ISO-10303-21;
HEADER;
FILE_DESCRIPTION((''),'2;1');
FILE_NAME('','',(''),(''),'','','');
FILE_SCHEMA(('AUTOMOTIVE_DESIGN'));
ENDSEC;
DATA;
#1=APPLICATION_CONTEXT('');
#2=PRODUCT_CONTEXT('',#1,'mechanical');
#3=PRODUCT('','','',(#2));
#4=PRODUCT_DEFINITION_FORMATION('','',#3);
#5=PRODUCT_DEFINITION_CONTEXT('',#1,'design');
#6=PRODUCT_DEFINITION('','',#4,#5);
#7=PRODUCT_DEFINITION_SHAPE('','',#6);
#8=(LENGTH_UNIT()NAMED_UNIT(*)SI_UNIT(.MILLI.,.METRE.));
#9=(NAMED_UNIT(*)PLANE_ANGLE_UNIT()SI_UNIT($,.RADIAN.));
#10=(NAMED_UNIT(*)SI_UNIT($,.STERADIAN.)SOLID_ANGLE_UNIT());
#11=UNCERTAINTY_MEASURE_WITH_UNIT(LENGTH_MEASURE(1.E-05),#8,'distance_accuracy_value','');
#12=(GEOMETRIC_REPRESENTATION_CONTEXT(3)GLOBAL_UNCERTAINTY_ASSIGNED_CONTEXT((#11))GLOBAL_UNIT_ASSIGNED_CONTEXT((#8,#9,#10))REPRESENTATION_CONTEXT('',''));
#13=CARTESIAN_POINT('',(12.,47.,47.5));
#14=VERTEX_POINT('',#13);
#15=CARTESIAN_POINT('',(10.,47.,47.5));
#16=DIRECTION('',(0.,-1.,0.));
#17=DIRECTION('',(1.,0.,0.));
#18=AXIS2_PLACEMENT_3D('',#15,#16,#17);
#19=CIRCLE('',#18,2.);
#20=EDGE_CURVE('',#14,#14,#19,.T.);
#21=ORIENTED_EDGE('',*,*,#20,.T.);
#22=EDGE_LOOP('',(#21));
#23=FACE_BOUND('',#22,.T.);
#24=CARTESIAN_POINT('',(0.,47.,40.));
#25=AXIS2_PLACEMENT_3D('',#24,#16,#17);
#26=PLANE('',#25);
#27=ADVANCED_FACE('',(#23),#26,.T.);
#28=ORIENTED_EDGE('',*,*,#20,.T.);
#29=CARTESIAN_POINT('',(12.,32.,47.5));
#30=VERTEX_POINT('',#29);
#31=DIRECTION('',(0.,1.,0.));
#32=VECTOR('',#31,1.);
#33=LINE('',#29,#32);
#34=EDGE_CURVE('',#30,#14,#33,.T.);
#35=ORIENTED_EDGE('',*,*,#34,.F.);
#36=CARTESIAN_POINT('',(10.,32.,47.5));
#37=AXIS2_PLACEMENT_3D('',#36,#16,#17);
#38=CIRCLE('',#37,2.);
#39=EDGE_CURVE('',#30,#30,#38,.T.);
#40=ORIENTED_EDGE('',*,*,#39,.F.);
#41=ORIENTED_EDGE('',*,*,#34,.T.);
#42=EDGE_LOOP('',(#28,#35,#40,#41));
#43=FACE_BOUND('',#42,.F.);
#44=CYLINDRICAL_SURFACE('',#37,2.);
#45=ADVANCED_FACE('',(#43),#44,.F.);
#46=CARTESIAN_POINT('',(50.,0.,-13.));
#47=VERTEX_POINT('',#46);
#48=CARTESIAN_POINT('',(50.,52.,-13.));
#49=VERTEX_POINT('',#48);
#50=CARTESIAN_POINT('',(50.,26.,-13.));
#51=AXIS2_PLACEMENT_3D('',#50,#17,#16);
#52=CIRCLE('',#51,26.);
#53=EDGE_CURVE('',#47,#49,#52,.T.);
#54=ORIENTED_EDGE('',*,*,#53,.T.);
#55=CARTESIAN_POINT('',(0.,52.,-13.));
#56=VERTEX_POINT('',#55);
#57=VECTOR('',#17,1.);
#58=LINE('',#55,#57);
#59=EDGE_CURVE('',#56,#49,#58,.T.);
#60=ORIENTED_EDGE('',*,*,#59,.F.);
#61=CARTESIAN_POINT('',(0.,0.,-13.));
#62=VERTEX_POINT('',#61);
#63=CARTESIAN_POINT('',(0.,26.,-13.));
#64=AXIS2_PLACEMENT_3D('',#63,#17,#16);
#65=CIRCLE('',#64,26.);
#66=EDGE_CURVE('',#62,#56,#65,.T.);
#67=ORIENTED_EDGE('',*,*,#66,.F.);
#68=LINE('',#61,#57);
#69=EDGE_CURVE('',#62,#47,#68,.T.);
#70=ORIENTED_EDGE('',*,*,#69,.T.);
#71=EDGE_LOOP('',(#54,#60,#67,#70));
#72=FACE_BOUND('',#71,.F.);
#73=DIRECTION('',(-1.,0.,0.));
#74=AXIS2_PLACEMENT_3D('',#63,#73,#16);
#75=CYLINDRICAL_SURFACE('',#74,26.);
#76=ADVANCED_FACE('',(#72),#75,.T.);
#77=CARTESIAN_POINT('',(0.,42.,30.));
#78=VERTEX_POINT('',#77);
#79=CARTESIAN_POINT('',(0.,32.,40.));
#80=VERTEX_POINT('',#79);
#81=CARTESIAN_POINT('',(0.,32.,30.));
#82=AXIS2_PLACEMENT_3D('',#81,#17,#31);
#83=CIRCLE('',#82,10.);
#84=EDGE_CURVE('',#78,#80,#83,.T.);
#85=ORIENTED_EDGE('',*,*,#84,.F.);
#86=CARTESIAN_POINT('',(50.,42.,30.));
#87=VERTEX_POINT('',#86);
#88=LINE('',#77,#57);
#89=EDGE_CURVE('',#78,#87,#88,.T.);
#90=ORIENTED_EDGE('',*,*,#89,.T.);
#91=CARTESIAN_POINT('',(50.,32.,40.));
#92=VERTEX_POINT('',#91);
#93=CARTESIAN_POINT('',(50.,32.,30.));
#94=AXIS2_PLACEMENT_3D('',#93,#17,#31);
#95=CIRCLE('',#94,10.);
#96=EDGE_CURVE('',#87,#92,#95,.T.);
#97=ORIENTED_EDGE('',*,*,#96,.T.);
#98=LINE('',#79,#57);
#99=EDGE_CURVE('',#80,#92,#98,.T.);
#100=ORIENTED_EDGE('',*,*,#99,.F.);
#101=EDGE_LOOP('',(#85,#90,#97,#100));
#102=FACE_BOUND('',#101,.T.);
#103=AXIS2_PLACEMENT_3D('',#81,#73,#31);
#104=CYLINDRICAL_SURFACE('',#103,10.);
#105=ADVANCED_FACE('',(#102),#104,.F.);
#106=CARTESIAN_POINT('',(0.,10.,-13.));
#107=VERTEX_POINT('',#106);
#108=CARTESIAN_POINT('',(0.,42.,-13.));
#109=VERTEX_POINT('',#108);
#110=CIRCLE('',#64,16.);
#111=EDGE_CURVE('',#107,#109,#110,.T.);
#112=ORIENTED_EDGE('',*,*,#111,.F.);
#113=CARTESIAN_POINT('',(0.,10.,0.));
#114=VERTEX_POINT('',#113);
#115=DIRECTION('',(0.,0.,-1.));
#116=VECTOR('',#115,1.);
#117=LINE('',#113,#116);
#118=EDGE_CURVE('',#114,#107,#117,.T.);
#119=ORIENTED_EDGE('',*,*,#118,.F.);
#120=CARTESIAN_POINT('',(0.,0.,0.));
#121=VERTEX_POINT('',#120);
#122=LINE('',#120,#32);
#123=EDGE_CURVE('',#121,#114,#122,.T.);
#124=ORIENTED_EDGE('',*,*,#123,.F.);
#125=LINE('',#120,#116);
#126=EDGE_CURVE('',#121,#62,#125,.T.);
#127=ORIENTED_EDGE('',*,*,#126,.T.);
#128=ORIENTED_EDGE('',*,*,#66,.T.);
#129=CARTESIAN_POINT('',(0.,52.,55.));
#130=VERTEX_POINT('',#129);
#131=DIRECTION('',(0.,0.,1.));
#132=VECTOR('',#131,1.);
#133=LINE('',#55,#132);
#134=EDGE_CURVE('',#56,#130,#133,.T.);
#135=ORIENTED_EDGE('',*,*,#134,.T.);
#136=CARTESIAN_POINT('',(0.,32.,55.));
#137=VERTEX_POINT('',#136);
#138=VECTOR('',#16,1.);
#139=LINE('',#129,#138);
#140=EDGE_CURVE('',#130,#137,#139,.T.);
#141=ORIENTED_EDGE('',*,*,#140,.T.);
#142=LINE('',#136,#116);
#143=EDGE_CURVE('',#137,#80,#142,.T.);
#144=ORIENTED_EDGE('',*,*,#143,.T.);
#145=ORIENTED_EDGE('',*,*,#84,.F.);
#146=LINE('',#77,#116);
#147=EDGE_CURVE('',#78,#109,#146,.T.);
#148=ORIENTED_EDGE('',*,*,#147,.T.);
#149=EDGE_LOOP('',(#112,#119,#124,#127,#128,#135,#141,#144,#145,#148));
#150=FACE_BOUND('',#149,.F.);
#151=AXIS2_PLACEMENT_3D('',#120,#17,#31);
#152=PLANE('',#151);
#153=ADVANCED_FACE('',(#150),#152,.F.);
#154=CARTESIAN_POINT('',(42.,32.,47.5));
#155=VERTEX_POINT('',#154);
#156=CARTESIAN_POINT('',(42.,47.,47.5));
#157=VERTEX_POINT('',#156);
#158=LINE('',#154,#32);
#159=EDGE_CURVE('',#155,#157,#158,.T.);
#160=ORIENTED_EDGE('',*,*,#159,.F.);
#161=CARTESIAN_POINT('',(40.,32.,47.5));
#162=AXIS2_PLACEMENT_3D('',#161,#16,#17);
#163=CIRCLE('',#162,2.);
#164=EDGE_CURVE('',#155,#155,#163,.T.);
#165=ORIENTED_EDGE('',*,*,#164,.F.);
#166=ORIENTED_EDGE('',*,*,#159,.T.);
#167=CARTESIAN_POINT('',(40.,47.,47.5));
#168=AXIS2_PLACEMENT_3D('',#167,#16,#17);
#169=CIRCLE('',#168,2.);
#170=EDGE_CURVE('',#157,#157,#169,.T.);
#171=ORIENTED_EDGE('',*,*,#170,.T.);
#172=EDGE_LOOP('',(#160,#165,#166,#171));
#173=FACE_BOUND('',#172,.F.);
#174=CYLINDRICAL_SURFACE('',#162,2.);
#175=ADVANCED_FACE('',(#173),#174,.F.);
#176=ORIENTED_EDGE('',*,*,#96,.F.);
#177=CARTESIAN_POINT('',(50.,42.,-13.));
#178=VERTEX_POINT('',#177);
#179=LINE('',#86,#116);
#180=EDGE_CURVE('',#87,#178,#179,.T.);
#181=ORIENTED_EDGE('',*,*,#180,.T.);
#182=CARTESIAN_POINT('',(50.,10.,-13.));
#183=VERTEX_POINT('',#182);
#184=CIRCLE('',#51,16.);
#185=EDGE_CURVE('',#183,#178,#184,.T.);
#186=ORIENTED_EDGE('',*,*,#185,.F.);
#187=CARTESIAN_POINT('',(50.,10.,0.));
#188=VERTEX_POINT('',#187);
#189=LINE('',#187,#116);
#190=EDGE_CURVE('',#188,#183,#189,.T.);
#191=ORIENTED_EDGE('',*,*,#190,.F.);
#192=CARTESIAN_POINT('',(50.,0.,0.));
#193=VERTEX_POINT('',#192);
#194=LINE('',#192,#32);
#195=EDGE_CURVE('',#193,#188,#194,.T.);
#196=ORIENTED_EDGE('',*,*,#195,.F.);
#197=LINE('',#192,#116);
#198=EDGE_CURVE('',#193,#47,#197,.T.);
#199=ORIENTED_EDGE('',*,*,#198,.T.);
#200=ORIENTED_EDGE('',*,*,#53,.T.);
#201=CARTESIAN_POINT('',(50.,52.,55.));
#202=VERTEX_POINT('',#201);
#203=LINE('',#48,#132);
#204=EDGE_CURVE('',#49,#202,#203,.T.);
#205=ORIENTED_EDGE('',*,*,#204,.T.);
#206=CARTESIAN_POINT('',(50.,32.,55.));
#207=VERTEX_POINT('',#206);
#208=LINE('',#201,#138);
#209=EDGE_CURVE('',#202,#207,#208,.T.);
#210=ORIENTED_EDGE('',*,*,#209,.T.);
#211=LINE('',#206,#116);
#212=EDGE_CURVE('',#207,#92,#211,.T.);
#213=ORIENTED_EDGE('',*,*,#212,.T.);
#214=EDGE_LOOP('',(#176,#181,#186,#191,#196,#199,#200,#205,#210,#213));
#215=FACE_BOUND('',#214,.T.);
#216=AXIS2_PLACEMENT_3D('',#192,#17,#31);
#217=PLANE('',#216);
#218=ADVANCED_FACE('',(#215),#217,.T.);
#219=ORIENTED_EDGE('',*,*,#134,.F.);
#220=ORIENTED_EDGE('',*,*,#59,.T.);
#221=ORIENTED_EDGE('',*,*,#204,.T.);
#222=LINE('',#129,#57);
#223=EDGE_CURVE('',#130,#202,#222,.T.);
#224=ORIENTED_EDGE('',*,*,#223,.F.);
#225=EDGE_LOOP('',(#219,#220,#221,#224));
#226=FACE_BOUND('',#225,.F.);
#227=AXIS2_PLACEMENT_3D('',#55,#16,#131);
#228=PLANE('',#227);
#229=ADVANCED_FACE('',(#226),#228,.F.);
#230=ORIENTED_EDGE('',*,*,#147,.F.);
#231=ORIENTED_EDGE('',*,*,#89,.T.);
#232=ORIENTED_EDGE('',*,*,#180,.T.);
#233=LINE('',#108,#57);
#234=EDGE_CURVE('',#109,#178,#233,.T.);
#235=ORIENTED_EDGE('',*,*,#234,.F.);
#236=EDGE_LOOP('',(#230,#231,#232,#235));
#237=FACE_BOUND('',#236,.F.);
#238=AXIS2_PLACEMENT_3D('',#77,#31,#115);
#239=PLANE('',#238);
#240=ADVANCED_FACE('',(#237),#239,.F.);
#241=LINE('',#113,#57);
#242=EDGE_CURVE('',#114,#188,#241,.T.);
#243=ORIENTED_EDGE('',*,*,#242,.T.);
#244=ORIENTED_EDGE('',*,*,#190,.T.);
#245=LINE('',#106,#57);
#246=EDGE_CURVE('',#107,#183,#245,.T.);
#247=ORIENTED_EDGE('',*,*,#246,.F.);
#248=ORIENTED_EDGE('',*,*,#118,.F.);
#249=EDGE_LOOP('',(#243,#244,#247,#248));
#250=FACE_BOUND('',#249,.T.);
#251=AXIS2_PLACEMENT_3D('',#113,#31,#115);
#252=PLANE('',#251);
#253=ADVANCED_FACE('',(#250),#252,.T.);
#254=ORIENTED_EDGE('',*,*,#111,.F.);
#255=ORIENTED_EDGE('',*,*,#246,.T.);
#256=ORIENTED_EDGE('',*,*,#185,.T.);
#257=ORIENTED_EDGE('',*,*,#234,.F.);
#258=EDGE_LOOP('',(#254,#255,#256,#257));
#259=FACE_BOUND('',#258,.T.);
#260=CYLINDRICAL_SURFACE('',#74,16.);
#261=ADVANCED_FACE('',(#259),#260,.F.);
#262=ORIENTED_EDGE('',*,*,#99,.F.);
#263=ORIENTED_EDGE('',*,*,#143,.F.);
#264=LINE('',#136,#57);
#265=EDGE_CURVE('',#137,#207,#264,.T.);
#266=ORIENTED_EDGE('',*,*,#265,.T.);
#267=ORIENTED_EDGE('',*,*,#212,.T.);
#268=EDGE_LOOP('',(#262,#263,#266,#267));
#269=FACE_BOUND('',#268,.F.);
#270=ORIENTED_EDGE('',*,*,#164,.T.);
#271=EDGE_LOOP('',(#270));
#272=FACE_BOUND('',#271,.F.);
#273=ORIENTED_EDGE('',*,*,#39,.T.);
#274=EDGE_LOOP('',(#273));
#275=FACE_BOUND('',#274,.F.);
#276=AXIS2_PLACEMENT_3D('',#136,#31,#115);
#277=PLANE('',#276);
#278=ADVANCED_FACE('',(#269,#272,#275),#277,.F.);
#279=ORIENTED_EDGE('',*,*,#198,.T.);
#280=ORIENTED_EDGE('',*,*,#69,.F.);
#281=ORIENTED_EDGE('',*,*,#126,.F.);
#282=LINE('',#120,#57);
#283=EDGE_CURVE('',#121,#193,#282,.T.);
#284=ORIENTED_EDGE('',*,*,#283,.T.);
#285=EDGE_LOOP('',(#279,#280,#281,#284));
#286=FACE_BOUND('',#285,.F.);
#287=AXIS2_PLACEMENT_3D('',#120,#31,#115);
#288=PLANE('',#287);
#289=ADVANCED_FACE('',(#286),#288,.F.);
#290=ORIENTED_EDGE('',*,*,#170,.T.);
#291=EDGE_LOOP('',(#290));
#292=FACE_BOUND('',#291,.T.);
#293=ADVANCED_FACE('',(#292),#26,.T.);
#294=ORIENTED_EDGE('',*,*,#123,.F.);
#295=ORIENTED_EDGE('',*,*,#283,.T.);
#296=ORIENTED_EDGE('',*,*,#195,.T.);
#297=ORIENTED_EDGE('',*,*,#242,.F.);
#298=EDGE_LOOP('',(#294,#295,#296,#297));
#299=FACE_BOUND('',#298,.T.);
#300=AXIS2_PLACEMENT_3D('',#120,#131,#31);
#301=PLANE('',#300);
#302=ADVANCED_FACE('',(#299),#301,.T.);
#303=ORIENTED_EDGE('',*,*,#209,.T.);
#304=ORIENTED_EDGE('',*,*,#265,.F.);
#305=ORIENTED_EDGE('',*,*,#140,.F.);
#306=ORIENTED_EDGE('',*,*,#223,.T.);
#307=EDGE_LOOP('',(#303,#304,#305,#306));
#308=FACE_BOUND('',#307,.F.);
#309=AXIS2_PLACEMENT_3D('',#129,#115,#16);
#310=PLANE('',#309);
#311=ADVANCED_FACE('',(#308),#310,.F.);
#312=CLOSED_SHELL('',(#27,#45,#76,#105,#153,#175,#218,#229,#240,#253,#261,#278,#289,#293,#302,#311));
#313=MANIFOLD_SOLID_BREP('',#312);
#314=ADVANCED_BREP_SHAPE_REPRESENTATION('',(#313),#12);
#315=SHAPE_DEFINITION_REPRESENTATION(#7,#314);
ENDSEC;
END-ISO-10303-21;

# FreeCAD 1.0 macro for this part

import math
import FreeCAD as App
import Part
import Sketcher
from FreeCAD import Vector
Q = App.Units.Quantity

doc = App.newDocument("Part")
body = doc.addObject("PartDesign::Body", "Body")

sketch1 = body.newObject("Sketcher::SketchObject", "Sketch")
sketch1.AttachmentSupport = (doc.getObject("YZ_Plane"), [""])
sketch1.MapMode = "FlatFace"
sketch1.addGeometry([
    Part.LineSegment(Vector(10, -13, 0), Vector(10, 0, 0)),
    Part.LineSegment(Vector(10, 0, 0), Vector(0, 0, 0)),
    Part.LineSegment(Vector(0, 0, 0), Vector(0, -13, 0)),
    Part.ArcOfCircle(Part.Circle(Vector(26, -13, 0), Vector(0, 0, 1), 26), math.radians(180), math.radians(360)),
    Part.LineSegment(Vector(52, -13, 0), Vector(52, 55, 0)),
    Part.LineSegment(Vector(52, 55, 0), Vector(32, 55, 0)),
    Part.LineSegment(Vector(32, 55, 0), Vector(32, 40, 0)),
    Part.ArcOfCircle(Part.Circle(Vector(32, 30, 0), Vector(0, 0, 1), 10), math.radians(0), math.radians(90)),
    Part.LineSegment(Vector(42, 30, 0), Vector(42, -13, 0)),
    Part.ArcOfCircle(Part.Circle(Vector(26, -13, 0), Vector(0, 0, 1), 16), math.radians(180), math.radians(360)),
], False)
sketch1.addConstraint([
    Sketcher.Constraint("Coincident", 0, 2, 1, 1),
    Sketcher.Constraint("Coincident", 1, 2, 2, 1),
    Sketcher.Constraint("Tangent", 2, 2, 3, 1),
    Sketcher.Constraint("Tangent", 3, 2, 4, 1),
    Sketcher.Constraint("Coincident", 4, 2, 5, 1),
    Sketcher.Constraint("Coincident", 5, 2, 6, 1),
    Sketcher.Constraint("Coincident", 6, 2, 7, 2),
    Sketcher.Constraint("Tangent", 7, 1, 8, 1),
    Sketcher.Constraint("Tangent", 8, 2, 9, 2),
    Sketcher.Constraint("Tangent", 9, 1, 0, 1),
    Sketcher.Constraint("Vertical", 0),
    Sketcher.Constraint("Horizontal", 1),
    Sketcher.Constraint("Vertical", 2),
    Sketcher.Constraint("Vertical", 4),
    Sketcher.Constraint("Horizontal", 5),
    Sketcher.Constraint("Vertical", 6),
    Sketcher.Constraint("Vertical", 8),
    Sketcher.Constraint("Coincident", 1, 2, -1, 1),
    Sketcher.Constraint("Coincident", 9, 3, 3, 3),
    Sketcher.Constraint("Vertical", 7, 3, 5, 2),
    Sketcher.Constraint("Radius", 3, Q("26 mm")),
    Sketcher.Constraint("Radius", 7, Q("10 mm")),
    Sketcher.Constraint("Radius", 9, Q("16 mm")),
    Sketcher.Constraint("DistanceY", 0, 1, 0, 2, Q("13 mm")),
    Sketcher.Constraint("DistanceY", 4, 1, 4, 2, Q("68 mm")),
    Sketcher.Constraint("DistanceY", 6, 2, 6, 1, Q("15 mm")),
])
pad1 = body.newObject("PartDesign::Pad", "Pad")
pad1.Profile = sketch1
pad1.Length = 50

sketch2 = body.newObject("Sketcher::SketchObject", "Sketch001")
sketch2.AttachmentSupport = (doc.getObject("XZ_Plane"), [""])
sketch2.MapMode = "FlatFace"
sketch2.AttachmentOffset = App.Placement(Vector(0, 0, -32), App.Rotation())
sketch2.addGeometry([
    Part.Circle(Vector(10, 47.5, 0), Vector(0, 0, 1), 2),
    Part.Circle(Vector(40, 47.5, 0), Vector(0, 0, 1), 2),
], False)
sketch2.addConstraint([
    Sketcher.Constraint("Equal", 0, 1),
    Sketcher.Constraint("Horizontal", 0, 3, 1, 3),
    Sketcher.Constraint("Diameter", 0, Q("4 mm")),
    Sketcher.Constraint("DistanceX", -1, 1, 0, 3, Q("10 mm")),
    Sketcher.Constraint("DistanceX", 0, 3, 1, 3, Q("30 mm")),
    Sketcher.Constraint("DistanceY", -1, 1, 0, 3, Q("47.5 mm")),
])
pocket1 = body.newObject("PartDesign::Pocket", "Pocket")
pocket1.Profile = sketch2
pocket1.Length = 15

doc.recompute()
